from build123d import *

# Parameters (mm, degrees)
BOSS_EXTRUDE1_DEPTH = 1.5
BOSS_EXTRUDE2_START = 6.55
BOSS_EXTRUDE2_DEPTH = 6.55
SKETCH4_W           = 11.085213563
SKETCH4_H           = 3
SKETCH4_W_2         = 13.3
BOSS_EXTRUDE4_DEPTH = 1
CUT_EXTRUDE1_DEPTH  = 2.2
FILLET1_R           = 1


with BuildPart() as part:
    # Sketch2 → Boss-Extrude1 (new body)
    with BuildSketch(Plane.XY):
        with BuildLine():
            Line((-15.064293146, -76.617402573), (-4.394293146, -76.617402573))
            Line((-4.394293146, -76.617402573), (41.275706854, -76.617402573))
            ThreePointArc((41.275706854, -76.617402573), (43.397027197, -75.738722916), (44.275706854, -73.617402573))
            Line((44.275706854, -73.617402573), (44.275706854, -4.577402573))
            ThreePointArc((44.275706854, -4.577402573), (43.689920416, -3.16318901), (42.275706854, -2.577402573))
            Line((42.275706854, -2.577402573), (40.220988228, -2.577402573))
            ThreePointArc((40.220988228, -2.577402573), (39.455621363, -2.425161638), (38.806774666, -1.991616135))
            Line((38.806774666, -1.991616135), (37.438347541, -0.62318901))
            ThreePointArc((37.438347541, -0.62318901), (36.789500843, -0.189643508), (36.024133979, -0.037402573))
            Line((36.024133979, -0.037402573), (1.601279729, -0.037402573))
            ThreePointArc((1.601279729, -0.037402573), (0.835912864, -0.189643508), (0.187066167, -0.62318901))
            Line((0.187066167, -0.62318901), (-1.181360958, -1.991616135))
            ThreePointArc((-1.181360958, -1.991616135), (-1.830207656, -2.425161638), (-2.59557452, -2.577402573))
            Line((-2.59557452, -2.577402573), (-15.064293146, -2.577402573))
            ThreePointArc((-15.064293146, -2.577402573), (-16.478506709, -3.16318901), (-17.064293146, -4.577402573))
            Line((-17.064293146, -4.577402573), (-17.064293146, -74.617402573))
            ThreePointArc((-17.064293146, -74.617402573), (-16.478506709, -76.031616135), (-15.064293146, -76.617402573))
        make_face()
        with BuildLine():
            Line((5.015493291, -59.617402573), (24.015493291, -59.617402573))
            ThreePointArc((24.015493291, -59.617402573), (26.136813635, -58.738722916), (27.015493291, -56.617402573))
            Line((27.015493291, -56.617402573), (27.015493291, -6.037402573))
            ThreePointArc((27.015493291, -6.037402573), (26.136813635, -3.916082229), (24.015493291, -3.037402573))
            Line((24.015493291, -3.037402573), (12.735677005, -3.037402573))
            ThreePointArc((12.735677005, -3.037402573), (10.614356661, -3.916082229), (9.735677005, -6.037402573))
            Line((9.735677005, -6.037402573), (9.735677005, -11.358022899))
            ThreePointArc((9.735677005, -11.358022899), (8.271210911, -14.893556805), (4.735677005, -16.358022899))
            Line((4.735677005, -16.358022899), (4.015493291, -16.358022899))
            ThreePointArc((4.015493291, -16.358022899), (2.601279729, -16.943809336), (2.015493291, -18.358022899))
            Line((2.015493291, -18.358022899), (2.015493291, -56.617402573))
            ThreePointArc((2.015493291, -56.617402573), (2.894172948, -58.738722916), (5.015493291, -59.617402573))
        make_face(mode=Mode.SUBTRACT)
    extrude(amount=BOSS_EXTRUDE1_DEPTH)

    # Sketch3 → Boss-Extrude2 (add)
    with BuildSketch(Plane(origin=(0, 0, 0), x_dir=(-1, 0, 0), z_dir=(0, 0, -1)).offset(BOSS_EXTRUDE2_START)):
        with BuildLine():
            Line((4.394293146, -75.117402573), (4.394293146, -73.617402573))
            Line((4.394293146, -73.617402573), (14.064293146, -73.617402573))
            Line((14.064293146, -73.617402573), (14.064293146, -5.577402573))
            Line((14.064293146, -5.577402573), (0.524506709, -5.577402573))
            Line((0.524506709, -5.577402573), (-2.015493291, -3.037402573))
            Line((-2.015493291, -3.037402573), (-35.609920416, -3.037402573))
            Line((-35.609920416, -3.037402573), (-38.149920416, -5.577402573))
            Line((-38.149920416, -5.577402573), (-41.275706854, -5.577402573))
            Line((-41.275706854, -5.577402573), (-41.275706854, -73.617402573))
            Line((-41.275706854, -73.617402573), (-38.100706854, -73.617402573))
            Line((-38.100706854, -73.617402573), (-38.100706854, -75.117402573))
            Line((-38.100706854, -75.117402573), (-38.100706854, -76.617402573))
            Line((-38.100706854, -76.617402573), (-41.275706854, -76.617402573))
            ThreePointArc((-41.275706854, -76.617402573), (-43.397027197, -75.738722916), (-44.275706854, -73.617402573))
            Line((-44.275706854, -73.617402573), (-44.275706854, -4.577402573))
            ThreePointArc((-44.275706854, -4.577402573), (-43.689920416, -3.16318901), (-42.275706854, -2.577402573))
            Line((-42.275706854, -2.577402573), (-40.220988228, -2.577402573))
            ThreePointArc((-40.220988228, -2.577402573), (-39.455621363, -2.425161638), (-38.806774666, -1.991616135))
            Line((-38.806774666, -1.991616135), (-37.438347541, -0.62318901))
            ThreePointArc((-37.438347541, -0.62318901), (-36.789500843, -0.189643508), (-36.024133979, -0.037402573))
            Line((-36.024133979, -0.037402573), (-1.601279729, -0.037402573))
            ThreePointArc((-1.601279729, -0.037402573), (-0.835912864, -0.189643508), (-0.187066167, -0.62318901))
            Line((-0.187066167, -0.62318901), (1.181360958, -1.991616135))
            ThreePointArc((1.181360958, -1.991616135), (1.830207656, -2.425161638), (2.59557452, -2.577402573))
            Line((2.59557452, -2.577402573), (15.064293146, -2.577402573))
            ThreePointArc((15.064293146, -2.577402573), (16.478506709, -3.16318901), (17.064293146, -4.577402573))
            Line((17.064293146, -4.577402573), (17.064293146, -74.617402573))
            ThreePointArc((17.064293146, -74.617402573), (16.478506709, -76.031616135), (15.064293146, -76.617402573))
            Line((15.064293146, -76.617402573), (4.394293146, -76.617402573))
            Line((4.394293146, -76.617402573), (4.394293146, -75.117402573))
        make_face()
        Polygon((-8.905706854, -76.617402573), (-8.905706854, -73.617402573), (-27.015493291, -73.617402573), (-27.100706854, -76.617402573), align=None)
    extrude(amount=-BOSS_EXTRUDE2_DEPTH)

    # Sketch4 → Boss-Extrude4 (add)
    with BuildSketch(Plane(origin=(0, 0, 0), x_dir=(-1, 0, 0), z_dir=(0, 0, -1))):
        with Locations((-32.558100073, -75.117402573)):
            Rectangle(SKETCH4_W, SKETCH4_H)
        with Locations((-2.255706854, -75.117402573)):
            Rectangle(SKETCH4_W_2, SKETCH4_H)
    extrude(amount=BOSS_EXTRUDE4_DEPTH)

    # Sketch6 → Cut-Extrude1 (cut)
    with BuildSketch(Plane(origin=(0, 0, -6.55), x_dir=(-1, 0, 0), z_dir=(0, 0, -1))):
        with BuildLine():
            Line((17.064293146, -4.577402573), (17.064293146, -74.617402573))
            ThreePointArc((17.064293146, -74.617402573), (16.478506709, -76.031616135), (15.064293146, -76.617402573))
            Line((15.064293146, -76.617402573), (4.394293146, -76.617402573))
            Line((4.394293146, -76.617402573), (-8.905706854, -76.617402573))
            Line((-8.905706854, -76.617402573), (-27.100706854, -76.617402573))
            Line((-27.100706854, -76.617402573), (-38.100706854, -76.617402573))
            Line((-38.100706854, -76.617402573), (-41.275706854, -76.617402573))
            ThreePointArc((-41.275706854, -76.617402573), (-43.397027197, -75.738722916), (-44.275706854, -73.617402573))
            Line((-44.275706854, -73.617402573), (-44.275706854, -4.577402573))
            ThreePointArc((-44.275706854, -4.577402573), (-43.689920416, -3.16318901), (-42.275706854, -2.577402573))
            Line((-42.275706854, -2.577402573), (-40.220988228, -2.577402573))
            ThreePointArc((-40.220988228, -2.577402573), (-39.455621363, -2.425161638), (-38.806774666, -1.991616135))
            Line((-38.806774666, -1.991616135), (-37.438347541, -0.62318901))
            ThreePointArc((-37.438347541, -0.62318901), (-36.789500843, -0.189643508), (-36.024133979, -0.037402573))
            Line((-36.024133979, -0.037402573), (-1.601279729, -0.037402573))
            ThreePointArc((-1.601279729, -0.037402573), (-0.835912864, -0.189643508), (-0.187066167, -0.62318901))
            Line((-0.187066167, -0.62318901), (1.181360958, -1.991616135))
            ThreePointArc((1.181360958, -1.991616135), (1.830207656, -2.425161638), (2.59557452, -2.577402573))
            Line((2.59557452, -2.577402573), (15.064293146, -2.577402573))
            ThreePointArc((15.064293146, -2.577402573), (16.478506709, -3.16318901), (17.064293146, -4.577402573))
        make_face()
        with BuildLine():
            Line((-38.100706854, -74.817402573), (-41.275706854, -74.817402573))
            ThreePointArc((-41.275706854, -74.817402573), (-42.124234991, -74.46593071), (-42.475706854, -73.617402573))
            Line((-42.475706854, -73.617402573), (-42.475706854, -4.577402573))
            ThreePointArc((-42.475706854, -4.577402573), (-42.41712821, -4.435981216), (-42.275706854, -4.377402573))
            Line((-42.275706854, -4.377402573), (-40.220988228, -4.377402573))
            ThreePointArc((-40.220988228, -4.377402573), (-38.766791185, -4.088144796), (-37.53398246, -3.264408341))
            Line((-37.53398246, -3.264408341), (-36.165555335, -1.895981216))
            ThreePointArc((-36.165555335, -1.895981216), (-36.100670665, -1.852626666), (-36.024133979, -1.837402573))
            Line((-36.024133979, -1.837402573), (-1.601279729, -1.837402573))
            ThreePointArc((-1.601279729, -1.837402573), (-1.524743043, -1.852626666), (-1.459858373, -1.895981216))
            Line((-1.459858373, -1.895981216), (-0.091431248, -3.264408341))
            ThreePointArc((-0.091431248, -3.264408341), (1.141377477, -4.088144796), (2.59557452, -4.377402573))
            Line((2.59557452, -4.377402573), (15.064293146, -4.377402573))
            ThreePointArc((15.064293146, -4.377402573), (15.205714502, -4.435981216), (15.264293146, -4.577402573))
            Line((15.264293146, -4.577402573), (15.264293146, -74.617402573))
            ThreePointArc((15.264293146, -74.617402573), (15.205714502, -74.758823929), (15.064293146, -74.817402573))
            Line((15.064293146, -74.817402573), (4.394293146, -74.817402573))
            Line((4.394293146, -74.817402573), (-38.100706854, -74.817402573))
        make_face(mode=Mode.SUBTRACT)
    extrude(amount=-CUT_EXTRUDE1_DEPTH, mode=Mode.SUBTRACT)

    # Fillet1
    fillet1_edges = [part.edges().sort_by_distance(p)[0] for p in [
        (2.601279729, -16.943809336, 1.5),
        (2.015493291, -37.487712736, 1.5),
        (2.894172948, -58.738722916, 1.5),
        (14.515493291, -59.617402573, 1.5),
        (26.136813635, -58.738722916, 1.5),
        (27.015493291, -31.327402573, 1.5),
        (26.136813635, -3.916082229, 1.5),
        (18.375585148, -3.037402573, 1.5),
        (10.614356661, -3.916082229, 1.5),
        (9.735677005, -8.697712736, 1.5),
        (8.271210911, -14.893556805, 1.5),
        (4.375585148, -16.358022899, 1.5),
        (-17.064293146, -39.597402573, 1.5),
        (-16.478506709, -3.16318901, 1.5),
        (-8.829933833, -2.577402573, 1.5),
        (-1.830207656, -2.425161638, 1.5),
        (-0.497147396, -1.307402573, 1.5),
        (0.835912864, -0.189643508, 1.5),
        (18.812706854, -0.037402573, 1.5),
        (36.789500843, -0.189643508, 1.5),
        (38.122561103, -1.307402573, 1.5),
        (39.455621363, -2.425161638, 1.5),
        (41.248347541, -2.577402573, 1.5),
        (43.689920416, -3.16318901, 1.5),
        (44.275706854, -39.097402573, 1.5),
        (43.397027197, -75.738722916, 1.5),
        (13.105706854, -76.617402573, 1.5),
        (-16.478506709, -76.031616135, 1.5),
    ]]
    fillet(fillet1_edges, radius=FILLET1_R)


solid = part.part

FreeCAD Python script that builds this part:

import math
import FreeCAD as App
import Part
import Sketcher

V = App.Vector
Q = App.Units.Quantity


def edges_at(feature, points):
    """Names of the edges that pass closest to the given points."""
    edges = feature.Shape.Edges
    near = lambda p: min(range(len(edges)), key=lambda i: edges[i].distToShape(Part.Vertex(*p))[0])
    return sorted({f"Edge{near(p) + 1}" for p in points})

doc = App.newDocument("Part")
body = doc.addObject("PartDesign::Body", "Body")

# Sketch on XY plane
sketch1 = body.newObject("Sketcher::SketchObject", "Sketch")
sketch1.AttachmentSupport = (doc.getObject("XY_Plane"), [""])
sketch1.MapMode = "FlatFace"
sketch1.addGeometry([
    Part.LineSegment(V(-15.1, -76.6, 0), V(41.3, -76.6, 0)),  # 0
    Part.ArcOfCircle(Part.Circle(V(41.3, -73.6, 0), V(0, 0, 1), 3), math.radians(-90), math.radians(0)),  # 1
    Part.LineSegment(V(44.3, -73.6, 0), V(44.3, -4.6, 0)),  # 2
    Part.ArcOfCircle(Part.Circle(V(42.3, -4.6, 0), V(0, 0, 1), 2), math.radians(0), math.radians(90)),  # 3
    Part.LineSegment(V(42.3, -2.6, 0), V(40.2, -2.6, 0)),  # 4
    Part.ArcOfCircle(Part.Circle(V(40.2, -0.6, 0), V(0, 0, 1), 2), math.radians(-135), math.radians(-90)),  # 5
    Part.LineSegment(V(38.8, -2, 0), V(37.4, -0.6, 0)),  # 6
    Part.ArcOfCircle(Part.Circle(V(36, -2, 0), V(0, 0, 1), 2), math.radians(45), math.radians(90)),  # 7
    Part.LineSegment(V(36, 0, 0), V(1.6, 0, 0)),  # 8
    Part.ArcOfCircle(Part.Circle(V(1.6, -2, 0), V(0, 0, 1), 2), math.radians(90), math.radians(135)),  # 9
    Part.LineSegment(V(0.2, -0.6, 0), V(-1.2, -2, 0)),  # 10
    Part.ArcOfCircle(Part.Circle(V(-2.6, -0.6, 0), V(0, 0, 1), 2), math.radians(-90), math.radians(-45)),  # 11
    Part.LineSegment(V(-2.6, -2.6, 0), V(-15.1, -2.6, 0)),  # 12
    Part.ArcOfCircle(Part.Circle(V(-15.1, -4.6, 0), V(0, 0, 1), 2), math.radians(90), math.radians(180)),  # 13
    Part.LineSegment(V(-17.1, -4.6, 0), V(-17.1, -74.6, 0)),  # 14
    Part.ArcOfCircle(Part.Circle(V(-15.1, -74.6, 0), V(0, 0, 1), 2), math.radians(180), math.radians(270)),  # 15
    Part.LineSegment(V(24, -59.6, 0), V(5, -59.6, 0)),  # 16
    Part.ArcOfCircle(Part.Circle(V(5, -56.6, 0), V(0, 0, 1), 3), math.radians(-180), math.radians(-90)),  # 17
    Part.LineSegment(V(2, -56.6, 0), V(2, -18.4, 0)),  # 18
    Part.ArcOfCircle(Part.Circle(V(4, -18.4, 0), V(0, 0, 1), 2), math.radians(90), math.radians(180)),  # 19
    Part.LineSegment(V(4, -16.4, 0), V(4.7, -16.4, 0)),  # 20
    Part.ArcOfCircle(Part.Circle(V(4.7, -11.4, 0), V(0, 0, 1), 5), math.radians(-90), math.radians(0)),  # 21
    Part.LineSegment(V(9.7, -11.4, 0), V(9.7, -6, 0)),  # 22
    Part.ArcOfCircle(Part.Circle(V(12.7, -6, 0), V(0, 0, 1), 3), math.radians(90), math.radians(180)),  # 23
    Part.LineSegment(V(12.7, -3, 0), V(24, -3, 0)),  # 24
    Part.ArcOfCircle(Part.Circle(V(24, -6, 0), V(0, 0, 1), 3), math.radians(0), math.radians(90)),  # 25
    Part.LineSegment(V(27, -6, 0), V(27, -56.6, 0)),  # 26
    Part.ArcOfCircle(Part.Circle(V(24, -56.6, 0), V(0, 0, 1), 3), math.radians(-90), math.radians(0)),  # 27
], False)
sketch1.addConstraint([
    Sketcher.Constraint("Tangent", 0, 2, 1, 1),
    Sketcher.Constraint("Tangent", 1, 2, 2, 1),
    Sketcher.Constraint("Tangent", 2, 2, 3, 1),
    Sketcher.Constraint("Tangent", 3, 2, 4, 1),
    Sketcher.Constraint("Tangent", 4, 2, 5, 2),
    Sketcher.Constraint("Tangent", 5, 1, 6, 1),
    Sketcher.Constraint("Tangent", 6, 2, 7, 1),
    Sketcher.Constraint("Tangent", 7, 2, 8, 1),
    Sketcher.Constraint("Tangent", 8, 2, 9, 1),
    Sketcher.Constraint("Tangent", 9, 2, 10, 1),
    Sketcher.Constraint("Tangent", 10, 2, 11, 2),
    Sketcher.Constraint("Tangent", 11, 1, 12, 1),
    Sketcher.Constraint("Tangent", 12, 2, 13, 1),
    Sketcher.Constraint("Tangent", 13, 2, 14, 1),
    Sketcher.Constraint("Tangent", 14, 2, 15, 1),
    Sketcher.Constraint("Tangent", 15, 2, 0, 1),
    Sketcher.Constraint("Tangent", 16, 2, 17, 2),
    Sketcher.Constraint("Tangent", 17, 1, 18, 1),
    Sketcher.Constraint("Tangent", 18, 2, 19, 2),
    Sketcher.Constraint("Tangent", 19, 1, 20, 1),
    Sketcher.Constraint("Tangent", 20, 2, 21, 1),
    Sketcher.Constraint("Tangent", 21, 2, 22, 1),
    Sketcher.Constraint("Tangent", 22, 2, 23, 2),
    Sketcher.Constraint("Tangent", 23, 1, 24, 1),
    Sketcher.Constraint("Tangent", 24, 2, 25, 2),
    Sketcher.Constraint("Tangent", 25, 1, 26, 1),
    Sketcher.Constraint("Tangent", 26, 2, 27, 2),
    Sketcher.Constraint("Tangent", 27, 1, 16, 1),
    Sketcher.Constraint("Horizontal", 0),
    Sketcher.Constraint("Vertical", 2),
    Sketcher.Constraint("Horizontal", 4),
    Sketcher.Constraint("Horizontal", 8),
    Sketcher.Constraint("Horizontal", 12),
    Sketcher.Constraint("Vertical", 14),
    Sketcher.Constraint("Horizontal", 16),
    Sketcher.Constraint("Vertical", 18),
    Sketcher.Constraint("Horizontal", 20),
    Sketcher.Constraint("Vertical", 22),
    Sketcher.Constraint("Horizontal", 24),
    Sketcher.Constraint("Vertical", 26),
    Sketcher.Constraint("Equal", 3, 5),
    Sketcher.Constraint("Equal", 5, 7),
    Sketcher.Constraint("Equal", 7, 9),
    Sketcher.Constraint("Equal", 9, 11),
    Sketcher.Constraint("Equal", 11, 13),
    Sketcher.Constraint("Equal", 13, 15),
    Sketcher.Constraint("Equal", 1, 17),
    Sketcher.Constraint("Equal", 15, 19),
    Sketcher.Constraint("Equal", 17, 23),
    Sketcher.Constraint("Equal", 23, 25),
    Sketcher.Constraint("Equal", 25, 27),
    Sketcher.Constraint("Perpendicular", 6, 10),
    Sketcher.Constraint("Horizontal", 5, 3, 11, 3),
    Sketcher.Constraint("Horizontal", 6, 2, 9, 2),
    Sketcher.Constraint("Radius", 1, Q("3 mm")),
    Sketcher.Constraint("Radius", 3, Q("2 mm")),
    Sketcher.Constraint("Radius", 21, Q("5 mm")),
    Sketcher.Constraint("DistanceX", 16, 2, 16, 1, Q("19 mm")),
    Sketcher.Constraint("DistanceY", 15, 3, 17, 3, Q("18 mm")),
    Sketcher.Constraint("DistanceY", 23, 3, 9, 3, Q("4 mm")),
    Sketcher.Constraint("DistanceX", 0, 1, 0, 2, Q("56.34 mm")),
    Sketcher.Constraint("DistanceY", 2, 1, 2, 2, Q("69.04 mm")),
    Sketcher.Constraint("DistanceY", 26, 2, 26, 1, Q("50.58 mm")),
    Sketcher.Constraint("DistanceX", 4, 2, 4, 1, Q("2.054719 mm")),
    Sketcher.Constraint("DistanceX", 12, 2, 12, 1, Q("12.468719 mm")),
    Sketcher.Constraint("DistanceY", 18, 1, 18, 2, Q("38.25938 mm")),
    Sketcher.Constraint("DistanceX", 20, 1, 20, 2, Q("0.720184 mm")),
    Sketcher.Constraint("DistanceX", -1, 1, 5, 3, Q("40.220988 mm")),
    Sketcher.Constraint("DistanceY", 6, 2, -1, 1, Q("0.623189 mm")),
    Sketcher.Constraint("DistanceX", 19, 3, 7, 3, Q("32.008641 mm")),
])
pad1 = body.newObject("PartDesign::Pad", "Pad")
pad1.Profile = sketch1
pad1.Length = 1.5

# Sketch on XY plane
sketch2 = body.newObject("Sketcher::SketchObject", "Sketch001")
sketch2.AttachmentSupport = (doc.getObject("XY_Plane"), [""])
sketch2.MapMode = "FlatFace"
sketch2.AttachmentOffset = App.Placement(V(0, 0, -6.55), App.Rotation())
sketch2.addGeometry([
    Part.LineSegment(V(-14.1, -73.6, 0), V(-4.4, -73.6, 0)),  # 0
    Part.LineSegment(V(-4.4, -73.6, 0), V(-4.4, -76.6, 0)),  # 1
    Part.LineSegment(V(-4.4, -76.6, 0), V(-15.1, -76.6, 0)),  # 2
    Part.ArcOfCircle(Part.Circle(V(-15.1, -74.6, 0), V(0, 0, 1), 2), math.radians(180), math.radians(270)),  # 3
    Part.LineSegment(V(-17.1, -74.6, 0), V(-17.1, -4.6, 0)),  # 4
    Part.ArcOfCircle(Part.Circle(V(-15.1, -4.6, 0), V(0, 0, 1), 2), math.radians(90), math.radians(180)),  # 5
    Part.LineSegment(V(-15.1, -2.6, 0), V(-2.6, -2.6, 0)),  # 6
    Part.ArcOfCircle(Part.Circle(V(-2.6, -0.6, 0), V(0, 0, 1), 2), math.radians(-90), math.radians(-45)),  # 7
    Part.LineSegment(V(-1.2, -2, 0), V(0.2, -0.6, 0)),  # 8
    Part.ArcOfCircle(Part.Circle(V(1.6, -2, 0), V(0, 0, 1), 2), math.radians(90), math.radians(135)),  # 9
    Part.LineSegment(V(1.6, 0, 0), V(36, 0, 0)),  # 10
    Part.ArcOfCircle(Part.Circle(V(36, -2, 0), V(0, 0, 1), 2), math.radians(45), math.radians(90)),  # 11
    Part.LineSegment(V(37.4, -0.6, 0), V(38.8, -2, 0)),  # 12
    Part.ArcOfCircle(Part.Circle(V(40.2, -0.6, 0), V(0, 0, 1), 2), math.radians(-135), math.radians(-90)),  # 13
    Part.LineSegment(V(40.2, -2.6, 0), V(42.3, -2.6, 0)),  # 14
    Part.ArcOfCircle(Part.Circle(V(42.3, -4.6, 0), V(0, 0, 1), 2), math.radians(0), math.radians(90)),  # 15
    Part.LineSegment(V(44.3, -4.6, 0), V(44.3, -73.6, 0)),  # 16
    Part.ArcOfCircle(Part.Circle(V(41.3, -73.6, 0), V(0, 0, 1), 3), math.radians(-90), math.radians(0)),  # 17
    Part.LineSegment(V(41.3, -76.6, 0), V(38.1, -76.6, 0)),  # 18
    Part.LineSegment(V(38.1, -76.6, 0), V(38.1, -73.6, 0)),  # 19
    Part.LineSegment(V(38.1, -73.6, 0), V(41.3, -73.6, 0)),  # 20
    Part.LineSegment(V(41.3, -73.6, 0), V(41.3, -5.6, 0)),  # 21
    Part.LineSegment(V(41.3, -5.6, 0), V(38.1, -5.6, 0)),  # 22
    Part.LineSegment(V(38.1, -5.6, 0), V(35.6, -3, 0)),  # 23
    Part.LineSegment(V(35.6, -3, 0), V(2, -3, 0)),  # 24
    Part.LineSegment(V(2, -3, 0), V(-0.5, -5.6, 0)),  # 25
    Part.LineSegment(V(-0.5, -5.6, 0), V(-14.1, -5.6, 0)),  # 26
    Part.LineSegment(V(-14.1, -5.6, 0), V(-14.1, -73.6, 0)),  # 27
    Part.LineSegment(V(8.9, -76.6, 0), V(8.9, -73.6, 0)),  # 28
    Part.LineSegment(V(8.9, -73.6, 0), V(27, -73.6, 0)),  # 29
    Part.LineSegment(V(27, -73.6, 0), V(27.1, -76.6, 0)),  # 30
    Part.LineSegment(V(27.1, -76.6, 0), V(8.9, -76.6, 0)),  # 31
], False)
sketch2.addConstraint([
    Sketcher.Constraint("Coincident", 0, 2, 1, 1),
    Sketcher.Constraint("Coincident", 1, 2, 2, 1),
    Sketcher.Constraint("Tangent", 2, 2, 3, 2),
    Sketcher.Constraint("Tangent", 3, 1, 4, 1),
    Sketcher.Constraint("Tangent", 4, 2, 5, 2),
    Sketcher.Constraint("Tangent", 5, 1, 6, 1),
    Sketcher.Constraint("Tangent", 6, 2, 7, 1),
    Sketcher.Constraint("Tangent", 7, 2, 8, 1),
    Sketcher.Constraint("Tangent", 8, 2, 9, 2),
    Sketcher.Constraint("Tangent", 9, 1, 10, 1),
    Sketcher.Constraint("Tangent", 10, 2, 11, 2),
    Sketcher.Constraint("Tangent", 11, 1, 12, 1),
    Sketcher.Constraint("Tangent", 12, 2, 13, 1),
    Sketcher.Constraint("Tangent", 13, 2, 14, 1),
    Sketcher.Constraint("Tangent", 14, 2, 15, 2),
    Sketcher.Constraint("Tangent", 15, 1, 16, 1),
    Sketcher.Constraint("Tangent", 16, 2, 17, 2),
    Sketcher.Constraint("Tangent", 17, 1, 18, 1),
    Sketcher.Constraint("Coincident", 18, 2, 19, 1),
    Sketcher.Constraint("Coincident", 19, 2, 20, 1),
    Sketcher.Constraint("Coincident", 20, 2, 21, 1),
    Sketcher.Constraint("Coincident", 21, 2, 22, 1),
    Sketcher.Constraint("Coincident", 22, 2, 23, 1),
    Sketcher.Constraint("Coincident", 23, 2, 24, 1),
    Sketcher.Constraint("Coincident", 24, 2, 25, 1),
    Sketcher.Constraint("Coincident", 25, 2, 26, 1),
    Sketcher.Constraint("Coincident", 26, 2, 27, 1),
    Sketcher.Constraint("Coincident", 27, 2, 0, 1),
    Sketcher.Constraint("Coincident", 28, 2, 29, 1),
    Sketcher.Constraint("Coincident", 29, 2, 30, 1),
    Sketcher.Constraint("Coincident", 30, 2, 31, 1),
    Sketcher.Constraint("Coincident", 31, 2, 28, 1),
    Sketcher.Constraint("Horizontal", 0),
    Sketcher.Constraint("Vertical", 1),
    Sketcher.Constraint("Horizontal", 2),
    Sketcher.Constraint("Vertical", 4),
    Sketcher.Constraint("Horizontal", 6),
    Sketcher.Constraint("Horizontal", 10),
    Sketcher.Constraint("Horizontal", 14),
    Sketcher.Constraint("Vertical", 16),
    Sketcher.Constraint("Horizontal", 18),
    Sketcher.Constraint("Vertical", 19),
    Sketcher.Constraint("Horizontal", 20),
    Sketcher.Constraint("Vertical", 21),
    Sketcher.Constraint("Horizontal", 22),
    Sketcher.Constraint("Horizontal", 24),
    Sketcher.Constraint("Horizontal", 26),
    Sketcher.Constraint("Vertical", 27),
    Sketcher.Constraint("Vertical", 28),
    Sketcher.Constraint("Horizontal", 29),
    Sketcher.Constraint("Horizontal", 31),
    Sketcher.Constraint("Coincident", 20, 2, 17, 3),
    Sketcher.Constraint("Equal", 3, 5),
    Sketcher.Constraint("Equal", 5, 7),
    Sketcher.Constraint("Equal", 7, 9),
    Sketcher.Constraint("Equal", 9, 11),
    Sketcher.Constraint("Equal", 11, 13),
    Sketcher.Constraint("Equal", 13, 15),
    Sketcher.Constraint("Perpendicular", 8, 12),
    Sketcher.Constraint("Parallel", 12, 23),
    Sketcher.Constraint("Perpendicular", 23, 25),
    Sketcher.Constraint("Horizontal", 7, 3, 13, 3),
    Sketcher.Constraint("Horizontal", 17, 3, 0, 2),
    Sketcher.Constraint("Horizontal", 8, 2, 11, 1),
    Sketcher.Constraint("Horizontal", 2, 2, 17, 1),
    Sketcher.Constraint("Horizontal", 22, 2, 25, 2),
    Sketcher.Constraint("Horizontal", 27, 2, 28, 2),
    Sketcher.Constraint("Horizontal", 18, 2, 30, 2),
    Sketcher.Constraint("Radius", 3, Q("2 mm")),
    Sketcher.Constraint("Radius", 17, Q("3 mm")),
    Sketcher.Constraint("DistanceY", 21, 2, 15, 3, Q("1 mm")),
    Sketcher.Constraint("DistanceY", 23, 2, 11, 3, Q("1 mm")),
    Sketcher.Constraint("DistanceX", 5, 3, 26, 2, Q("1 mm")),
    Sketcher.Constraint("DistanceX", 30, 2, 18, 2, Q("11 mm")),
    Sketcher.Constraint("DistanceX", 0, 1, 0, 2, Q("9.67 mm")),
    Sketcher.Constraint("DistanceY", 4, 1, 4, 2, Q("70.04 mm")),
    Sketcher.Constraint("DistanceX", 0, 2, 28, 2, Q("13.3 mm")),
    Sketcher.Constraint("DistanceX", 18, 2, 18, 1, Q("3.175 mm")),
    Sketcher.Constraint("DistanceX", 31, 2, 31, 1, Q("18.195 mm")),
    Sketcher.Constraint("DistanceY", 9, 3, 7, 3, Q("1.46 mm")),
    Sketcher.Constraint("DistanceX", 6, 1, 6, 2, Q("12.468719 mm")),
    Sketcher.Constraint("DistanceX", 14, 1, 14, 2, Q("2.054719 mm")),
    Sketcher.Constraint("Distance", 30, Q("3.00121 mm")),
    Sketcher.Constraint("DistanceX", 22, 2, 22, 1, Q("3.125786 mm")),
    Sketcher.Constraint("DistanceX", 24, 2, 24, 1, Q("33.594427 mm")),
    Sketcher.Constraint("DistanceX", -1, 1, 9, 3, Q("1.60128 mm")),
    Sketcher.Constraint("DistanceY", 8, 2, -1, 1, Q("0.623189 mm")),
])
pad2 = body.newObject("PartDesign::Pad", "Pad001")
pad2.Profile = sketch2
pad2.Length = 6.55

# Sketch on XY plane
sketch3 = body.newObject("Sketcher::SketchObject", "Sketch002")
sketch3.AttachmentSupport = (doc.getObject("XY_Plane"), [""])
sketch3.MapMode = "FlatFace"
sketch3.addGeometry([
    Part.LineSegment(V(38.1, -73.6, 0), V(38.1, -76.6, 0)),  # 0
    Part.LineSegment(V(38.1, -76.6, 0), V(27, -76.6, 0)),  # 1
    Part.LineSegment(V(27, -76.6, 0), V(27, -73.6, 0)),  # 2
    Part.LineSegment(V(27, -73.6, 0), V(38.1, -73.6, 0)),  # 3
    Part.LineSegment(V(8.9, -73.6, 0), V(8.9, -76.6, 0)),  # 4
    Part.LineSegment(V(8.9, -76.6, 0), V(-4.4, -76.6, 0)),  # 5
    Part.LineSegment(V(-4.4, -76.6, 0), V(-4.4, -73.6, 0)),  # 6
    Part.LineSegment(V(-4.4, -73.6, 0), V(8.9, -73.6, 0)),  # 7
], False)
sketch3.addConstraint([
    Sketcher.Constraint("Coincident", 0, 2, 1, 1),
    Sketcher.Constraint("Coincident", 1, 2, 2, 1),
    Sketcher.Constraint("Coincident", 2, 2, 3, 1),
    Sketcher.Constraint("Coincident", 3, 2, 0, 1),
    Sketcher.Constraint("Coincident", 4, 2, 5, 1),
    Sketcher.Constraint("Coincident", 5, 2, 6, 1),
    Sketcher.Constraint("Coincident", 6, 2, 7, 1),
    Sketcher.Constraint("Coincident", 7, 2, 4, 1),
    Sketcher.Constraint("Vertical", 0),
    Sketcher.Constraint("Horizontal", 1),
    Sketcher.Constraint("Vertical", 2),
    Sketcher.Constraint("Horizontal", 3),
    Sketcher.Constraint("Vertical", 4),
    Sketcher.Constraint("Horizontal", 5),
    Sketcher.Constraint("Vertical", 6),
    Sketcher.Constraint("Horizontal", 7),
    Sketcher.Constraint("Horizontal", 1, 2, 4, 2),
    Sketcher.Constraint("Horizontal", 3, 2, 6, 2),
    Sketcher.Constraint("DistanceY", 0, 2, 0, 1, Q("3 mm")),
    Sketcher.Constraint("DistanceX", 5, 2, 5, 1, Q("13.3 mm")),
    Sketcher.Constraint("DistanceX", 4, 2, 0, 2, Q("29.195 mm")),
    Sketcher.Constraint("DistanceX", 1, 2, 1, 1, Q("11.085214 mm")),
    Sketcher.Constraint("DistanceX", -1, 1, 0, 2, Q("38.100707 mm")),
    Sketcher.Constraint("DistanceY", 0, 2, -1, 1, Q("76.617403 mm")),
])
pad3 = body.newObject("PartDesign::Pad", "Pad002")
pad3.Profile = sketch3
pad3.Length = 1
pad3.Reversed = True

# Sketch on XY plane
sketch4 = body.newObject("Sketcher::SketchObject", "Sketch003")
sketch4.AttachmentSupport = (doc.getObject("XY_Plane"), [""])
sketch4.MapMode = "FlatFace"
sketch4.AttachmentOffset = App.Placement(V(0, 0, -6.55), App.Rotation())
sketch4.addGeometry([
    Part.LineSegment(V(-17.06, -74.62, 0), V(-17.06, -4.58, 0)),  # 0
    Part.ArcOfCircle(Part.Circle(V(-15.06, -4.58, 0), V(0, 0, 1), 2), math.radians(90), math.radians(180)),  # 1
    Part.LineSegment(V(-15.06, -2.58, 0), V(-2.6, -2.58, 0)),  # 2
    Part.ArcOfCircle(Part.Circle(V(-2.6, -0.58, 0), V(0, 0, 1), 2), math.radians(-90), math.radians(-45)),  # 3
    Part.LineSegment(V(-1.18, -1.99, 0), V(0.19, -0.62, 0)),  # 4
    Part.ArcOfCircle(Part.Circle(V(1.6, -2.04, 0), V(0, 0, 1), 2), math.radians(90), math.radians(135)),  # 5
    Part.LineSegment(V(1.6, -0.04, 0), V(36.02, -0.04, 0)),  # 6
    Part.ArcOfCircle(Part.Circle(V(36.02, -2.04, 0), V(0, 0, 1), 2), math.radians(45), math.radians(90)),  # 7
    Part.LineSegment(V(37.44, -0.62, 0), V(38.81, -1.99, 0)),  # 8
    Part.ArcOfCircle(Part.Circle(V(40.22, -0.58, 0), V(0, 0, 1), 2), math.radians(-135), math.radians(-90)),  # 9
    Part.LineSegment(V(40.22, -2.58, 0), V(42.28, -2.58, 0)),  # 10
    Part.ArcOfCircle(Part.Circle(V(42.28, -4.58, 0), V(0, 0, 1), 2), math.radians(0), math.radians(90)),  # 11
    Part.LineSegment(V(44.28, -4.58, 0), V(44.28, -73.62, 0)),  # 12
    Part.ArcOfCircle(Part.Circle(V(41.28, -73.62, 0), V(0, 0, 1), 3), math.radians(-90), math.radians(0)),  # 13
    Part.LineSegment(V(41.28, -76.62, 0), V(-15.06, -76.62, 0)),  # 14
    Part.ArcOfCircle(Part.Circle(V(-15.06, -74.62, 0), V(0, 0, 1), 2), math.radians(180), math.radians(270)),  # 15
    Part.ArcOfCircle(Part.Circle(V(41.28, -73.62, 0), V(0, 0, 1), 1.2), math.radians(-90), math.radians(0)),  # 16
    Part.LineSegment(V(42.48, -73.62, 0), V(42.48, -4.58, 0)),  # 17
    Part.ArcOfCircle(Part.Circle(V(42.28, -4.58, 0), V(0, 0, 1), 0.2), math.radians(0), math.radians(90)),  # 18
    Part.LineSegment(V(42.28, -4.38, 0), V(40.22, -4.38, 0)),  # 19
    Part.ArcOfCircle(Part.Circle(V(40.22, -0.58, 0), V(0, 0, 1), 3.8), math.radians(-135), math.radians(-90)),  # 20
    Part.LineSegment(V(37.53, -3.26, 0), V(36.17, -1.9, 0)),  # 21
    Part.ArcOfCircle(Part.Circle(V(36.02, -2.04, 0), V(0, 0, 1), 0.2), math.radians(45), math.radians(90)),  # 22
    Part.LineSegment(V(36.02, -1.84, 0), V(1.6, -1.84, 0)),  # 23
    Part.ArcOfCircle(Part.Circle(V(1.6, -2.04, 0), V(0, 0, 1), 0.2), math.radians(90), math.radians(135)),  # 24
    Part.LineSegment(V(1.46, -1.9, 0), V(0.09, -3.26, 0)),  # 25
    Part.ArcOfCircle(Part.Circle(V(-2.6, -0.58, 0), V(0, 0, 1), 3.8), math.radians(-90), math.radians(-45)),  # 26
    Part.LineSegment(V(-2.6, -4.38, 0), V(-15.06, -4.38, 0)),  # 27
    Part.ArcOfCircle(Part.Circle(V(-15.06, -4.58, 0), V(0, 0, 1), 0.2), math.radians(90), math.radians(180)),  # 28
    Part.LineSegment(V(-15.26, -4.58, 0), V(-15.26, -74.62, 0)),  # 29
    Part.ArcOfCircle(Part.Circle(V(-15.06, -74.62, 0), V(0, 0, 1), 0.2), math.radians(-180), math.radians(-90)),  # 30
    Part.LineSegment(V(-15.06, -74.82, 0), V(41.28, -74.82, 0)),  # 31
], False)
sketch4.addConstraint([
    Sketcher.Constraint("Tangent", 0, 2, 1, 2),
    Sketcher.Constraint("Tangent", 1, 1, 2, 1),
    Sketcher.Constraint("Tangent", 2, 2, 3, 1),
    Sketcher.Constraint("Tangent", 3, 2, 4, 1),
    Sketcher.Constraint("Tangent", 4, 2, 5, 2),
    Sketcher.Constraint("Tangent", 5, 1, 6, 1),
    Sketcher.Constraint("Tangent", 6, 2, 7, 2),
    Sketcher.Constraint("Tangent", 7, 1, 8, 1),
    Sketcher.Constraint("Tangent", 8, 2, 9, 1),
    Sketcher.Constraint("Tangent", 9, 2, 10, 1),
    Sketcher.Constraint("Tangent", 10, 2, 11, 2),
    Sketcher.Constraint("Tangent", 11, 1, 12, 1),
    Sketcher.Constraint("Tangent", 12, 2, 13, 2),
    Sketcher.Constraint("Tangent", 13, 1, 14, 1),
    Sketcher.Constraint("Tangent", 14, 2, 15, 2),
    Sketcher.Constraint("Tangent", 15, 1, 0, 1),
    Sketcher.Constraint("Tangent", 16, 2, 17, 1),
    Sketcher.Constraint("Tangent", 17, 2, 18, 1),
    Sketcher.Constraint("Tangent", 18, 2, 19, 1),
    Sketcher.Constraint("Tangent", 19, 2, 20, 2),
    Sketcher.Constraint("Tangent", 20, 1, 21, 1),
    Sketcher.Constraint("Tangent", 21, 2, 22, 1),
    Sketcher.Constraint("Tangent", 22, 2, 23, 1),
    Sketcher.Constraint("Tangent", 23, 2, 24, 1),
    Sketcher.Constraint("Tangent", 24, 2, 25, 1),
    Sketcher.Constraint("Tangent", 25, 2, 26, 2),
    Sketcher.Constraint("Tangent", 26, 1, 27, 1),
    Sketcher.Constraint("Tangent", 27, 2, 28, 1),
    Sketcher.Constraint("Tangent", 28, 2, 29, 1),
    Sketcher.Constraint("Tangent", 29, 2, 30, 1),
    Sketcher.Constraint("Tangent", 30, 2, 31, 1),
    Sketcher.Constraint("Tangent", 31, 2, 16, 1),
    Sketcher.Constraint("Vertical", 0),
    Sketcher.Constraint("Horizontal", 2),
    Sketcher.Constraint("Horizontal", 6),
    Sketcher.Constraint("Horizontal", 10),
    Sketcher.Constraint("Vertical", 12),
    Sketcher.Constraint("Horizontal", 14),
    Sketcher.Constraint("Vertical", 17),
    Sketcher.Constraint("Horizontal", 19),
    Sketcher.Constraint("Horizontal", 23),
    Sketcher.Constraint("Horizontal", 27),
    Sketcher.Constraint("Vertical", 29),
    Sketcher.Constraint("Horizontal", 31),
    Sketcher.Constraint("Coincident", 16, 3, 13, 3),
    Sketcher.Constraint("Coincident", 18, 3, 11, 3),
    Sketcher.Constraint("Coincident", 20, 3, 9, 3),
    Sketcher.Constraint("Coincident", 22, 3, 7, 3),
    Sketcher.Constraint("Coincident", 24, 3, 5, 3),
    Sketcher.Constraint("Coincident", 26, 3, 3, 3),
    Sketcher.Constraint("Coincident", 28, 3, 1, 3),
    Sketcher.Constraint("Coincident", 30, 3, 15, 3),
    Sketcher.Constraint("Equal", 1, 3),
    Sketcher.Constraint("Equal", 3, 5),
    Sketcher.Constraint("Equal", 5, 7),
    Sketcher.Constraint("Equal", 7, 9),
    Sketcher.Constraint("Equal", 9, 11),
    Sketcher.Constraint("Equal", 11, 15),
    Sketcher.Constraint("Equal", 18, 22),
    Sketcher.Constraint("Perpendicular", 4, 8),
    Sketcher.Constraint("Horizontal", 3, 3, 9, 3),
    Sketcher.Constraint("Horizontal", 4, 2, 7, 1),
    Sketcher.Constraint("Radius", 1, Q("2 mm")),
    Sketcher.Constraint("Radius", 13, Q("3 mm")),
    Sketcher.Constraint("Radius", 16, Q("1.2 mm")),
    Sketcher.Constraint("DistanceX", 14, 2, 14, 1, Q("56.34 mm")),
    Sketcher.Constraint("DistanceY", 0, 1, 0, 2, Q("70.04 mm")),
    Sketcher.Constraint("DistanceY", 5, 3, 3, 3, Q("1.46 mm")),
    Sketcher.Constraint("DistanceX", 2, 1, 2, 2, Q("12.468719 mm")),
    Sketcher.Constraint("DistanceX", 10, 1, 10, 2, Q("2.054719 mm")),
    Sketcher.Constraint("DistanceX", -1, 1, 5, 3, Q("1.60128 mm")),
    Sketcher.Constraint("DistanceY", 4, 2, -1, 1, Q("0.623189 mm")),
])
pocket1 = body.newObject("PartDesign::Pocket", "Pocket")
pocket1.Profile = sketch4
pocket1.Length = 2.2
pocket1.Reversed = True
doc.recompute()

fillet = body.newObject("PartDesign::Fillet", "Fillet")
fillet.Base = (pocket1, edges_at(pocket1, [
    (2.601, -16.944, 1.5),
    (2.015, -37.488, 1.5),
    (2.894, -58.739, 1.5),
    (14.515, -59.617, 1.5),
    (26.137, -58.739, 1.5),
    (27.015, -31.327, 1.5),
    (26.137, -3.916, 1.5),
    (18.376, -3.037, 1.5),
    (10.614, -3.916, 1.5),
    (9.736, -8.698, 1.5),
    (8.271, -14.894, 1.5),
    (4.376, -16.358, 1.5),
    (-17.064, -39.597, 1.5),
    (-16.479, -3.163, 1.5),
    (-8.83, -2.577, 1.5),
    (-1.83, -2.425, 1.5),
    (-0.497, -1.307, 1.5),
    (0.836, -0.19, 1.5),
    (18.813, -0.037, 1.5),
    (36.79, -0.19, 1.5),
    (38.123, -1.307, 1.5),
    (39.456, -2.425, 1.5),
    (41.248, -2.577, 1.5),
    (43.69, -3.163, 1.5),
    (44.276, -39.097, 1.5),
    (43.397, -75.739, 1.5),
    (13.106, -76.617, 1.5),
    (-16.479, -76.032, 1.5),
]))
fillet.Radius = 1

doc.recompute()
